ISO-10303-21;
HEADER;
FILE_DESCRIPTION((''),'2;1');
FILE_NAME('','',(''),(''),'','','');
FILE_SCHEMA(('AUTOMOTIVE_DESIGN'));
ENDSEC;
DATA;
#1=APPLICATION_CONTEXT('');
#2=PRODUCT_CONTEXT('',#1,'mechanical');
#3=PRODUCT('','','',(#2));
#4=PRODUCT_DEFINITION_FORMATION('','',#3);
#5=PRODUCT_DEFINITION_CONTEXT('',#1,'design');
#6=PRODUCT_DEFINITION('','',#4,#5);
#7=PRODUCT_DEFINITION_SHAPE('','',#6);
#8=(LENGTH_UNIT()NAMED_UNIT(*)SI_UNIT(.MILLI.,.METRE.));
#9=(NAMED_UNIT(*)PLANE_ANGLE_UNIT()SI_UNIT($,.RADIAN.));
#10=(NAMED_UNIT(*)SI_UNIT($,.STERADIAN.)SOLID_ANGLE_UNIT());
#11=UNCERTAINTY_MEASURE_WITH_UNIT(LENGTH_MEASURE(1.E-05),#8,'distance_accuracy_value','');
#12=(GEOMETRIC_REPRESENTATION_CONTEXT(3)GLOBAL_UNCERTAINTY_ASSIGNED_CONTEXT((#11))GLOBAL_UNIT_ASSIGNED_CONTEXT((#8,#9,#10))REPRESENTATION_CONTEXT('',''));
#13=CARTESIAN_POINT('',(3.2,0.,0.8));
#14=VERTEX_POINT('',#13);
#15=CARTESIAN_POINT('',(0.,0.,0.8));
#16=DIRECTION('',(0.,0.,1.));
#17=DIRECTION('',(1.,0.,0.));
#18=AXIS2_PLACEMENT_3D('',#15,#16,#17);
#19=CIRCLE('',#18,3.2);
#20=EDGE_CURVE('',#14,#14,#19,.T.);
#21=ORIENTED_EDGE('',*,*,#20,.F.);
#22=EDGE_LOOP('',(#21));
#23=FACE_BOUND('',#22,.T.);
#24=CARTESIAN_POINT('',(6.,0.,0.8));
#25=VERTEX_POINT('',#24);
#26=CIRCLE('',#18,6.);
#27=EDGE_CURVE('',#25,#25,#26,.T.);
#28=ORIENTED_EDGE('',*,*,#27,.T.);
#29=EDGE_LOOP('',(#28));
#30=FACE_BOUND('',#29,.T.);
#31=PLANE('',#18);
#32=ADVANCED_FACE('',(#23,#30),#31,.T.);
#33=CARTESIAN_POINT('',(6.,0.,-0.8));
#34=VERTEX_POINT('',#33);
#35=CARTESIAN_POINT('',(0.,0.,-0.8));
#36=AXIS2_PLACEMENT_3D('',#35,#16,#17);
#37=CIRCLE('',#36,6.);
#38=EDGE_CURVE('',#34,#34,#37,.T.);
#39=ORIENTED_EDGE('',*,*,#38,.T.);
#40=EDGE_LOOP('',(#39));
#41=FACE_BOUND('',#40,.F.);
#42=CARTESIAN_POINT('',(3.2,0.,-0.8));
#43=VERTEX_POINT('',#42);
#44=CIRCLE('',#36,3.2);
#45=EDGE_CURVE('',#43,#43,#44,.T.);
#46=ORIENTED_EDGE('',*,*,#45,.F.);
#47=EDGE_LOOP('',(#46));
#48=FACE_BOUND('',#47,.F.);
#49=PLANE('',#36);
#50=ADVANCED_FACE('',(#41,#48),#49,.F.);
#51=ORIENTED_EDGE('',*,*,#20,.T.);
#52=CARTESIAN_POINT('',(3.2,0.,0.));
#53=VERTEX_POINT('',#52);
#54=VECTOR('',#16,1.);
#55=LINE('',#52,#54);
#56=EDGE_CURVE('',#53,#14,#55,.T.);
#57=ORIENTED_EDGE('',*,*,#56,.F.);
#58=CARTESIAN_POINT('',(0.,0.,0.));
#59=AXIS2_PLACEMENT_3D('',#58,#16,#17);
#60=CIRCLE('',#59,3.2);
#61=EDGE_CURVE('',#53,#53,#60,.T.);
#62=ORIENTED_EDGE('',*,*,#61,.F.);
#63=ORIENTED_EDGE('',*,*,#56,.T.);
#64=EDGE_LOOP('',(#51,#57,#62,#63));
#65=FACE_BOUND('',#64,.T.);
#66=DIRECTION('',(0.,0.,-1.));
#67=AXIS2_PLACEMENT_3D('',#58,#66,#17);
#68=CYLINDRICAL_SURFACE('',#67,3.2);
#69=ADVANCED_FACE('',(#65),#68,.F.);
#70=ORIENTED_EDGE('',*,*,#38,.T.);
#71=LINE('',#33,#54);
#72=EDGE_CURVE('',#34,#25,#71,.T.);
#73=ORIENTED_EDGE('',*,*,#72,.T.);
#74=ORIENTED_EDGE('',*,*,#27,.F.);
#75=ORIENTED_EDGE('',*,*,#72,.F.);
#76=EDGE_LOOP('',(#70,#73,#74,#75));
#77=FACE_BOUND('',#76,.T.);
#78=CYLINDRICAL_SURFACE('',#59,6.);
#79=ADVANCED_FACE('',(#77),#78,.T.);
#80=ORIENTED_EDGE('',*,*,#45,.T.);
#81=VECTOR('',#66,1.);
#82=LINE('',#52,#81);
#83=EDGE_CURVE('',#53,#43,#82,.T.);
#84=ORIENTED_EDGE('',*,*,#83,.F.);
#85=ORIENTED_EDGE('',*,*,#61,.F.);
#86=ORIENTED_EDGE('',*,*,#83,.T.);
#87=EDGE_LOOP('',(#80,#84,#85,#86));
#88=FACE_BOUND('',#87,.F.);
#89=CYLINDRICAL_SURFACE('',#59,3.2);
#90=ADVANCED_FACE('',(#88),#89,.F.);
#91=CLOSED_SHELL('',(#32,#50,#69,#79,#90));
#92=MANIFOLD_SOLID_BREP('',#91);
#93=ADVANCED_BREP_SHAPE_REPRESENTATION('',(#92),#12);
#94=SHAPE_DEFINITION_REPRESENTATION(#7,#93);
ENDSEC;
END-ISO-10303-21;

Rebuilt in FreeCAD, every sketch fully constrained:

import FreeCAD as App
import Part
import Sketcher

doc = App.newDocument("Part")
body = doc.addObject("PartDesign::Body", "Body")

# Sketch on XY plane
sketch1 = body.newObject("Sketcher::SketchObject", "Sketch")
sketch1.AttachmentSupport = (doc.getObject("XY_Plane"), [""])
sketch1.MapMode = "FlatFace"
sketch1.addGeometry(Part.Circle(App.Vector(0, 0, 0), App.Vector(0, 0, 1), 6), False)
sketch1.addGeometry(Part.Circle(App.Vector(0, 0, 0), App.Vector(0, 0, 1), 3.2), False)
sketch1.addConstraint(Sketcher.Constraint("Coincident", 0, 3, -1, 1))
sketch1.addConstraint(Sketcher.Constraint("Coincident", 1, 3, -1, 1))
sketch1.addConstraint(Sketcher.Constraint("Diameter", 0, 12.0))
sketch1.addConstraint(Sketcher.Constraint("Diameter", 1, 6.4))
pad1 = body.newObject("PartDesign::Pad", "Pad")
pad1.Profile = sketch1
pad1.Type = "TwoLengths"
pad1.Length = 0.8
pad1.Length2 = 0.8

doc.recompute()
